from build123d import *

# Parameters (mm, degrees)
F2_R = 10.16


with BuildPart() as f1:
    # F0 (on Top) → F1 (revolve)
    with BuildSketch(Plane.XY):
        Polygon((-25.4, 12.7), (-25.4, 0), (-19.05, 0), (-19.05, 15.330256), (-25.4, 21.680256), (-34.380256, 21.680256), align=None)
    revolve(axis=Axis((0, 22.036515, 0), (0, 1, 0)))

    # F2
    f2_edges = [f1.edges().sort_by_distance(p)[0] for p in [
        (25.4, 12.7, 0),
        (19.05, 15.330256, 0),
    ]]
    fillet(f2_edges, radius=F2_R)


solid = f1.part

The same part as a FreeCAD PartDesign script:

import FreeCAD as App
import Part
import Sketcher
Q = App.Units.Quantity


def edges_at(feature, points):
    """Names of the edges that pass closest to the given points."""
    edges = feature.Shape.Edges
    near = lambda p: min(range(len(edges)), key=lambda i: edges[i].distToShape(Part.Vertex(*p))[0])
    return sorted({f"Edge{near(p) + 1}" for p in points})


def add_polygon(sketch, points):
    """Adds a closed chain of lines whose ends are joined by coincident constraints."""
    first, n = sketch.GeometryCount, len(points)
    for a, b in zip(points, points[1:] + points[:1]):
        sketch.addGeometry(Part.LineSegment(App.Vector(*a, 0), App.Vector(*b, 0)), False)
    for i in range(n):
        sketch.addConstraint(Sketcher.Constraint("Coincident", first + i, 2, first + (i + 1) % n, 1))

doc = App.newDocument("Part")
params = doc.addObject("Spreadsheet::Sheet", "Params")
for row, (alias, value) in enumerate([
    ("sketch1_height", "0.5 in"),
    ("sketch1_length", "0.5 in"),
    ("sketch1_width", "0.25 in"),
    ("revolution_angle", "360 deg"),
    ("fillet_radius", "0.4 in"),
], start=1):
    params.set(f"A{row}", alias)
    params.set(f"B{row}", "=" + value)
    params.setAlias(f"B{row}", alias)

body = doc.addObject("PartDesign::Body", "Body")

sketch1 = body.newObject("Sketcher::SketchObject", "Sketch")
sketch1.AttachmentSupport = (doc.getObject("XY_Plane"), [""])
sketch1.MapMode = "FlatFace"
add_polygon(sketch1, [(-25, 13), (-25, 0), (-19, 0), (-19, 15), (-25, 22), (-34, 22)])
sketch1.addConstraint([
    Sketcher.Constraint("Vertical", 0),
    Sketcher.Constraint("Horizontal", 1),
    Sketcher.Constraint("Vertical", 2),
    Sketcher.Constraint("Horizontal", 4),
    Sketcher.Constraint("PointOnObject", 0, 2, -1),
    Sketcher.Constraint("Parallel", 3, 5),
    Sketcher.Constraint("Vertical", 0, 2, 3, 2),
    Sketcher.Constraint("DistanceY", 0, 2, 0, 1, Q("0.5 in")),
    Sketcher.Constraint("DistanceX", 0, 2, -1, 1, Q("1 in")),
    Sketcher.Constraint("Angle", 3, Q("135 deg")),
    Sketcher.Constraint("Distance", 5, Q("0.5 in")),
    Sketcher.Constraint("DistanceX", 1, 1, 1, 2, Q("0.25 in")),
])
sketch1.setExpression("Constraints[13]", "Params.sketch1_height")
sketch1.setExpression("Constraints[16]", "Params.sketch1_length")
sketch1.setExpression("Constraints[17]", "Params.sketch1_width")
revolution = body.newObject("PartDesign::Revolution", "Revolution")
revolution.Profile = sketch1
revolution.ReferenceAxis = (sketch1, ["V_Axis"])
revolution.setExpression("Angle", "Params.revolution_angle")
doc.recompute()

fillet = body.newObject("PartDesign::Fillet", "Fillet")
fillet.Base = (revolution, edges_at(revolution, [(25.4, 12.7, 0), (19.05, 15.33, 0)]))
fillet.setExpression("Radius", "Params.fillet_radius")

doc.recompute()
